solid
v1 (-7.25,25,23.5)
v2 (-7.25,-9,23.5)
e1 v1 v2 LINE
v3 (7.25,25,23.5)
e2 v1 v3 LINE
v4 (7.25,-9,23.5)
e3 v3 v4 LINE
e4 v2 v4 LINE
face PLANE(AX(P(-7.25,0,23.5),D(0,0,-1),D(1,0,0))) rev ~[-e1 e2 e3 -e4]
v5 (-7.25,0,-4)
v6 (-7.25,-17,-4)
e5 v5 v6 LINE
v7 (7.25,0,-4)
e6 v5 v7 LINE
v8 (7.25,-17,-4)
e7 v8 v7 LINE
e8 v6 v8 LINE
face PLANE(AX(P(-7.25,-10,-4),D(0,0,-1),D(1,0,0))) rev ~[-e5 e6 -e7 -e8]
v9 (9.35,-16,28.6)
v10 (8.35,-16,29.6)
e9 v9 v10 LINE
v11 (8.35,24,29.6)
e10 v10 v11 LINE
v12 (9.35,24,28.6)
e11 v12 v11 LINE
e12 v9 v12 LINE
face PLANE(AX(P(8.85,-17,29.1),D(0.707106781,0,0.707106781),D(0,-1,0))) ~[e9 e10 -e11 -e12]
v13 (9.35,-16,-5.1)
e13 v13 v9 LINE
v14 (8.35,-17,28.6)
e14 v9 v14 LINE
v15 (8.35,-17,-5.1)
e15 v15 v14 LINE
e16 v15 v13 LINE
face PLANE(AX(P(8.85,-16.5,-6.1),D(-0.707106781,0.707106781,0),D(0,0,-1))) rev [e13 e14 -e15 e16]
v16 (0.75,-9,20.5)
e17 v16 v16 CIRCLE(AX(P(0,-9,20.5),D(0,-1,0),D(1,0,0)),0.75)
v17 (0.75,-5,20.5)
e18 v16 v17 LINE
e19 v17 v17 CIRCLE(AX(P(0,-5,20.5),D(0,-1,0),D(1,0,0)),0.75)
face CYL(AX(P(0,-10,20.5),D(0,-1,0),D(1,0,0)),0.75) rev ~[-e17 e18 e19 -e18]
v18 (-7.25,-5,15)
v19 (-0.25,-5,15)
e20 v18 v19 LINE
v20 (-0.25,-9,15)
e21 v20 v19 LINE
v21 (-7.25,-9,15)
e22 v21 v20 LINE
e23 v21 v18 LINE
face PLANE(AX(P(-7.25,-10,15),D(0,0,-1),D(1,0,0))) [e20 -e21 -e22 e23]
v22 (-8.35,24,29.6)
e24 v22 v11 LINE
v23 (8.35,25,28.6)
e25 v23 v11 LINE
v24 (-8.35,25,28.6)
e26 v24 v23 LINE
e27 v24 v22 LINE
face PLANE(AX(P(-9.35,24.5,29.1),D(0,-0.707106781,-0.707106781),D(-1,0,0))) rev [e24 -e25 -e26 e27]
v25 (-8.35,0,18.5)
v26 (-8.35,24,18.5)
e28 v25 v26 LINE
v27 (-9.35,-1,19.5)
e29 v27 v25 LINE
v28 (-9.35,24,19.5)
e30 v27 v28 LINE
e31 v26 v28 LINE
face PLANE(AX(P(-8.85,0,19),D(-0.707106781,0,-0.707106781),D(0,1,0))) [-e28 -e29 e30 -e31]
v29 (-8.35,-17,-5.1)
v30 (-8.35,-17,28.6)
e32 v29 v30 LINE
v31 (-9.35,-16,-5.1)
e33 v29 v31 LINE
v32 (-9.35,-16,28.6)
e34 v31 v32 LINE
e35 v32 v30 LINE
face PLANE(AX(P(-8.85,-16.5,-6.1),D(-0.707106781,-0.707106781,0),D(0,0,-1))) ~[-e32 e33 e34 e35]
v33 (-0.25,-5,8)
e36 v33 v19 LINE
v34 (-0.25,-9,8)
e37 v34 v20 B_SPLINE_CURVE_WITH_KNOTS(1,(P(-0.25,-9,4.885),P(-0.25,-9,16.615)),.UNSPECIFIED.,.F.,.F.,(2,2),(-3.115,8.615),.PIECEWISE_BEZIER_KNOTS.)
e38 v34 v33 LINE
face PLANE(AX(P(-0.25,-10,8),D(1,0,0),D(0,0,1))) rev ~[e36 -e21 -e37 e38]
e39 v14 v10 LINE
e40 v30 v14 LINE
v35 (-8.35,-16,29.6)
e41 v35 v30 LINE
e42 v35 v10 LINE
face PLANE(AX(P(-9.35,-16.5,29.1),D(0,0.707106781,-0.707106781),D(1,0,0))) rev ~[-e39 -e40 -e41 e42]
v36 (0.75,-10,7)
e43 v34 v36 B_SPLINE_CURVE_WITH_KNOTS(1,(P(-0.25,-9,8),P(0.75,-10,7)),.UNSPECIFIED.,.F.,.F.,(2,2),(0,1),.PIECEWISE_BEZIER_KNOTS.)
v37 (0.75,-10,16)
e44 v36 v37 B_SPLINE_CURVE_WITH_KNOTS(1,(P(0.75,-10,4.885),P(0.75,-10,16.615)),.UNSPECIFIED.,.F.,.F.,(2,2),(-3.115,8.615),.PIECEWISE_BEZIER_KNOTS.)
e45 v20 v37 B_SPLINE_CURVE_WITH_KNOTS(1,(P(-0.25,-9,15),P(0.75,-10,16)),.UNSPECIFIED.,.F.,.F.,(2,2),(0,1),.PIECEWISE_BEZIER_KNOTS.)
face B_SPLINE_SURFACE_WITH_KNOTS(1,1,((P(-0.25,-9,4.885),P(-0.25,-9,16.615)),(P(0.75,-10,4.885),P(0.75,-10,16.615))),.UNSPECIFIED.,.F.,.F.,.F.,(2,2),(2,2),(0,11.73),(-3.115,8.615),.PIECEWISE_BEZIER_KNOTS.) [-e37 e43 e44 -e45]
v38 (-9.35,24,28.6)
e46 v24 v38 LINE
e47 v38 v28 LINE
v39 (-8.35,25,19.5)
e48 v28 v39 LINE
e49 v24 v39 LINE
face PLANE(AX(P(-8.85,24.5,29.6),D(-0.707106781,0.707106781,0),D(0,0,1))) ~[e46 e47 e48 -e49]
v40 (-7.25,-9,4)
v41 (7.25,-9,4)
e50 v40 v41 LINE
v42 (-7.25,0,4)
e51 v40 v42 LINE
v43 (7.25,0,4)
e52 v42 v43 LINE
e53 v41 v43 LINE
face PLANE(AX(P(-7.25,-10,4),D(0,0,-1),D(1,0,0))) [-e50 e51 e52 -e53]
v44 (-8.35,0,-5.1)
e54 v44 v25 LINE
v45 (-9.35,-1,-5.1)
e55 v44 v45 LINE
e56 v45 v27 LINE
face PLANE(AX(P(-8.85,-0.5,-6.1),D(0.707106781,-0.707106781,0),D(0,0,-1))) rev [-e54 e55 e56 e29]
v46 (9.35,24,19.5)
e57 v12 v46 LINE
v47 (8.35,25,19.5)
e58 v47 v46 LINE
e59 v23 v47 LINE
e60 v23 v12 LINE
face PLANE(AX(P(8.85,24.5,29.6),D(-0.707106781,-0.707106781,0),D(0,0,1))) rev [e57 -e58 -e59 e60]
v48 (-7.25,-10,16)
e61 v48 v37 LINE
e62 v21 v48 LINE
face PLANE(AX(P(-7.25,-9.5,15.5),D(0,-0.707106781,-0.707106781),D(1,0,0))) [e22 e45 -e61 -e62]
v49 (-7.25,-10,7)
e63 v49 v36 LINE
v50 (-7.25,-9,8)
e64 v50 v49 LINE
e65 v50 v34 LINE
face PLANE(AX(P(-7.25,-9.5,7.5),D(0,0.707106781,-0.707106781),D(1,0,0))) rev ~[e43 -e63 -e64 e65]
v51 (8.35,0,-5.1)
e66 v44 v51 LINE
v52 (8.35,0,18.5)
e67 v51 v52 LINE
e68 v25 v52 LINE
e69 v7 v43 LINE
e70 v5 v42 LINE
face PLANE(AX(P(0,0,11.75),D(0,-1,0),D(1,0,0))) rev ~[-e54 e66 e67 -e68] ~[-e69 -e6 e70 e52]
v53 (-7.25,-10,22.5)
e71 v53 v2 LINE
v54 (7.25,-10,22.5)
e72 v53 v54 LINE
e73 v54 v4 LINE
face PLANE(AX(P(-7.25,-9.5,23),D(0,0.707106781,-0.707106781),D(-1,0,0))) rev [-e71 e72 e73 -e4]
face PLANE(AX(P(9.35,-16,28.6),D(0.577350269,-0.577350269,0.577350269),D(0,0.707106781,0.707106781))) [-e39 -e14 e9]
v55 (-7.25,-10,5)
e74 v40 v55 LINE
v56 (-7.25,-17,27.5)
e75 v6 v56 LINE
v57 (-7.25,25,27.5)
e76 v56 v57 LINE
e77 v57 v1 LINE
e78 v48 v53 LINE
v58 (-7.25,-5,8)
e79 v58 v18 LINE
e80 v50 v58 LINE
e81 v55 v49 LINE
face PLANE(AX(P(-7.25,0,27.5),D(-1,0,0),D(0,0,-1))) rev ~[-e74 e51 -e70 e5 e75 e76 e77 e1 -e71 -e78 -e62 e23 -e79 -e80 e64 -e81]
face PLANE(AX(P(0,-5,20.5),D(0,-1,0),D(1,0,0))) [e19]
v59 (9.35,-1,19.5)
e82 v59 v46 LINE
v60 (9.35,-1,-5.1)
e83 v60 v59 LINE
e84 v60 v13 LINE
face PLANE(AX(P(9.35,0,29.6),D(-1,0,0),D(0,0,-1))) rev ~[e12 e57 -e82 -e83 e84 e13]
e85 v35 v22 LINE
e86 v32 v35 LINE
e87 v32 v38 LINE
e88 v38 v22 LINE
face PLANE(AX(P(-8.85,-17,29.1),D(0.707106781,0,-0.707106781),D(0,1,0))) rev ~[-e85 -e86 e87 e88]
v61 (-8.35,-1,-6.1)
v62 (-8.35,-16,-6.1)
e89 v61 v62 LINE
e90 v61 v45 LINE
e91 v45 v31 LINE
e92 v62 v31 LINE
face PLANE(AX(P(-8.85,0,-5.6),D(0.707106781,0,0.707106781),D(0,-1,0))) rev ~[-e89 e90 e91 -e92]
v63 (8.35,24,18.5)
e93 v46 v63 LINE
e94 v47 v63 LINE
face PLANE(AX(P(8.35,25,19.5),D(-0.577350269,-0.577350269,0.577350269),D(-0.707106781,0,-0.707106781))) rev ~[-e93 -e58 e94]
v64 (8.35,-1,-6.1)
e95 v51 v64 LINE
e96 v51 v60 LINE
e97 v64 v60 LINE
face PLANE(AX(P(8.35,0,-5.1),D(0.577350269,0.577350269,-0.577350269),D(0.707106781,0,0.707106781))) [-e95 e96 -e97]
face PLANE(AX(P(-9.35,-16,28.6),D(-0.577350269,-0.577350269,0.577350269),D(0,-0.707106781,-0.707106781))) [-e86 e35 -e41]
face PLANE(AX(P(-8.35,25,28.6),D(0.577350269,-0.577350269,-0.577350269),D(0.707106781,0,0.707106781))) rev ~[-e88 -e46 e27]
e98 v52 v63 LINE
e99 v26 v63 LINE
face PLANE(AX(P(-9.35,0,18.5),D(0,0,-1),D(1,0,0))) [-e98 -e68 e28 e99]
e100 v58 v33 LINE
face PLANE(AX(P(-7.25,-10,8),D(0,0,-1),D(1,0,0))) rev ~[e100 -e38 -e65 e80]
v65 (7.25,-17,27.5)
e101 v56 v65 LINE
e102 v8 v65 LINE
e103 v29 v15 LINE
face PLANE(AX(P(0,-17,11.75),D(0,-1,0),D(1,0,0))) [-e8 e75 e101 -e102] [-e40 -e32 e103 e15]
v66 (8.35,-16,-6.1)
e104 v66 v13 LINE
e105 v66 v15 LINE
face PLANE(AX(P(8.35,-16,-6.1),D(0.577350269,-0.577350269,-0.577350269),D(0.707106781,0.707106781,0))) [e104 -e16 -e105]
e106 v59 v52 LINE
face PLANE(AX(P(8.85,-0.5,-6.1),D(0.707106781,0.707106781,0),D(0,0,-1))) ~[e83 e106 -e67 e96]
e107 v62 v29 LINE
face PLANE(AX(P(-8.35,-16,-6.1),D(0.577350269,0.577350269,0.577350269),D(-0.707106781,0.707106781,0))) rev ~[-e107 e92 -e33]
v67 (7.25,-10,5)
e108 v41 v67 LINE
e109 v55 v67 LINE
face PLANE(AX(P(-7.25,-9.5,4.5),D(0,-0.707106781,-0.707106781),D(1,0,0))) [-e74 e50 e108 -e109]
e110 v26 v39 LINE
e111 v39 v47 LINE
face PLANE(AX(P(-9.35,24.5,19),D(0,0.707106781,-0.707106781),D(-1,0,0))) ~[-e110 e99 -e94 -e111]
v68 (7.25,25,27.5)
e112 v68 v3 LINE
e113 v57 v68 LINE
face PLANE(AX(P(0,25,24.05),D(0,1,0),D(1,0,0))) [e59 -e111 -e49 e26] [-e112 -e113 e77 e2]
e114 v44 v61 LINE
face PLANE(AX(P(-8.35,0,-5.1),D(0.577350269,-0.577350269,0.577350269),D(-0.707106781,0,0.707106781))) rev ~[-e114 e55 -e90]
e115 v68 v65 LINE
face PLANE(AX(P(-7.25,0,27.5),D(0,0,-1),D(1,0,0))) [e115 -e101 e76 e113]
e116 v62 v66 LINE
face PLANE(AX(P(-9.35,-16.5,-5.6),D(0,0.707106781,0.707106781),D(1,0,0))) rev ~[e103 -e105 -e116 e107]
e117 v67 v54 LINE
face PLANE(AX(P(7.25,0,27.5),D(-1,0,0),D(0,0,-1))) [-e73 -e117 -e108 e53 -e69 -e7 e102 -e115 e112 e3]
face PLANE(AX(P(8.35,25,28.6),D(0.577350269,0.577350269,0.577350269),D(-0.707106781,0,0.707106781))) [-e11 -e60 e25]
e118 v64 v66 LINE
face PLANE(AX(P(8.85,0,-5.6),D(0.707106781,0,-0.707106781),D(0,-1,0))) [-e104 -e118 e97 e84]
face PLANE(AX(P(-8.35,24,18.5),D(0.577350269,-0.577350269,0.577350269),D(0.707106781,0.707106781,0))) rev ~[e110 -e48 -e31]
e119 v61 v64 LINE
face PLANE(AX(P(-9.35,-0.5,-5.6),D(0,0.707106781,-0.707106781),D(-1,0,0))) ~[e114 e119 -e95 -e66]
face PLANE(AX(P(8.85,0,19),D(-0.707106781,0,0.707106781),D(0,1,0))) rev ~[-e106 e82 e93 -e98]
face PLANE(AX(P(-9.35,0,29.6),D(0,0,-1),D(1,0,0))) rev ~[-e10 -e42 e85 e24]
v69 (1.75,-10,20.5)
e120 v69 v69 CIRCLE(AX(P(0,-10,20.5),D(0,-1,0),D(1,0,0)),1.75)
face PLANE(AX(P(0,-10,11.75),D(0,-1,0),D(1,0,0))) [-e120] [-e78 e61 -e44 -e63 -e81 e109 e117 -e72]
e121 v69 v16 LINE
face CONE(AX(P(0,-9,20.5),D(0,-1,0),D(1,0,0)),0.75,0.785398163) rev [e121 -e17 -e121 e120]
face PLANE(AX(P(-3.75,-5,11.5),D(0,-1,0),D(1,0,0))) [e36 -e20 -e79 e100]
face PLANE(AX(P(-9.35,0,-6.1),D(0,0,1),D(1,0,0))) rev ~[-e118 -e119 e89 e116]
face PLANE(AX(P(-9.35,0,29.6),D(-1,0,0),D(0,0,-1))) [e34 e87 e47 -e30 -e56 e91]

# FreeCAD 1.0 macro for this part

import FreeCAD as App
import Part
import Sketcher

V = App.Vector


def edges_at(feature, points):
    """Names of the edges that pass closest to the given points."""
    edges = feature.Shape.Edges
    near = lambda p: min(range(len(edges)), key=lambda i: edges[i].distToShape(Part.Vertex(*p))[0])
    return sorted({f"Edge{near(p) + 1}" for p in points})


def add_polygon(sketch, points):
    """Adds a closed chain of lines whose ends are joined by coincident constraints."""
    first, n = sketch.GeometryCount, len(points)
    for a, b in zip(points, points[1:] + points[:1]):
        sketch.addGeometry(Part.LineSegment(App.Vector(*a, 0), App.Vector(*b, 0)), False)
    for i in range(n):
        sketch.addConstraint(Sketcher.Constraint("Coincident", first + i, 2, first + (i + 1) % n, 1))

doc = App.newDocument("Part")
body = doc.addObject("PartDesign::Body", "Body")

sketch1 = body.newObject("Sketcher::SketchObject", "Sketch")
sketch1.AttachmentSupport = (doc.getObject("XZ_Plane"), [""])
sketch1.MapMode = "FlatFace"
add_polygon(sketch1, [(-9, 30), (-9, -6), (9, -6), (9, 30)])
sketch1.addConstraint(Sketcher.Constraint("Vertical", 0))
sketch1.addConstraint(Sketcher.Constraint("Horizontal", 1))
sketch1.addConstraint(Sketcher.Constraint("Vertical", 2))
sketch1.addConstraint(Sketcher.Constraint("Horizontal", 3))
sketch1.addConstraint(Sketcher.Constraint("DistanceX", 1, 1, 1, 2, 18.7))
sketch1.addConstraint(Sketcher.Constraint("DistanceY", 0, 2, 0, 1, 35.7))
sketch1.addConstraint(Sketcher.Constraint("DistanceY", 0, 2, -1, 1, 6.1))
sketch1.addConstraint(Sketcher.Constraint("DistanceX", 0, 2, -1, 1, 9.35))
pad1 = body.newObject("PartDesign::Pad", "Pad")
pad1.Profile = sketch1
pad1.Length = 17

sketch2 = body.newObject("Sketcher::SketchObject", "Sketch001")
sketch2.AttachmentSupport = (doc.getObject("XZ_Plane"), [""])
sketch2.MapMode = "FlatFace"
sketch2.AttachmentOffset = App.Placement(V(0, 0, 17), App.Rotation())
add_polygon(sketch2, [(-7, 28), (-7, -4), (7, -4), (7, 28)])
sketch2.addConstraint(Sketcher.Constraint("Vertical", 0))
sketch2.addConstraint(Sketcher.Constraint("Horizontal", 1))
sketch2.addConstraint(Sketcher.Constraint("Vertical", 2))
sketch2.addConstraint(Sketcher.Constraint("Horizontal", 3))
sketch2.addConstraint(Sketcher.Constraint("DistanceX", 1, 1, 1, 2, 14.5))
sketch2.addConstraint(Sketcher.Constraint("DistanceY", 0, 2, 0, 1, 31.5))
sketch2.addConstraint(Sketcher.Constraint("DistanceY", 0, 2, -1, 1, 4.0))
sketch2.addConstraint(Sketcher.Constraint("DistanceX", 0, 2, -1, 1, 7.25))
pocket1 = body.newObject("PartDesign::Pocket", "Pocket")
pocket1.Profile = sketch2
pocket1.Length = 7

sketch3 = body.newObject("Sketcher::SketchObject", "Sketch002")
sketch3.AttachmentSupport = (doc.getObject("XZ_Plane"), [""])
sketch3.MapMode = "FlatFace"
sketch3.AttachmentOffset = App.Placement(V(0, 0, 10), App.Rotation())
add_polygon(sketch3, [(-7.2, 4), (-7.2, -4), (7.2, -4), (7.2, 4)])
add_polygon(sketch3, [(-7.2, 27.5), (-7.2, 23.5), (7.2, 23.5), (7.2, 27.5)])
sketch3.addConstraint(Sketcher.Constraint("Vertical", 0))
sketch3.addConstraint(Sketcher.Constraint("Horizontal", 1))
sketch3.addConstraint(Sketcher.Constraint("Vertical", 2))
sketch3.addConstraint(Sketcher.Constraint("Horizontal", 3))
sketch3.addConstraint(Sketcher.Constraint("Vertical", 4))
sketch3.addConstraint(Sketcher.Constraint("Horizontal", 5))
sketch3.addConstraint(Sketcher.Constraint("Vertical", 6))
sketch3.addConstraint(Sketcher.Constraint("Horizontal", 7))
sketch3.addConstraint(Sketcher.Constraint("Symmetric", 0, 2, 2, 2, -1, 1))
sketch3.addConstraint(Sketcher.Constraint("Vertical", 3, 2, 4, 2))
sketch3.addConstraint(Sketcher.Constraint("Vertical", 2, 2, 5, 2))
sketch3.addConstraint(Sketcher.Constraint("DistanceY", 0, 2, 0, 1, 8.0))
sketch3.addConstraint(Sketcher.Constraint("DistanceY", 4, 2, 4, 1, 4.0))
sketch3.addConstraint(Sketcher.Constraint("DistanceX", 1, 1, 1, 2, 14.5))
sketch3.addConstraint(Sketcher.Constraint("DistanceY", -1, 1, 4, 2, 23.5))
pocket2 = body.newObject("PartDesign::Pocket", "Pocket001")
pocket2.Profile = sketch3
pocket2.Type = "ThroughAll"

sketch4 = body.newObject("Sketcher::SketchObject", "Sketch003")
sketch4.AttachmentSupport = (doc.getObject("XZ_Plane"), [""])
sketch4.MapMode = "FlatFace"
sketch4.AttachmentOffset = App.Placement(V(0, 0, 10), App.Rotation())
sketch4.addGeometry(Part.Circle(V(0, 20.5, 0), V(0, 0, 1), 0.8), False)
add_polygon(sketch4, [(-7.2, 15), (-7.2, 8), (-0.2, 8), (-0.2, 15)])
sketch4.addConstraint(Sketcher.Constraint("Vertical", 1))
sketch4.addConstraint(Sketcher.Constraint("Horizontal", 2))
sketch4.addConstraint(Sketcher.Constraint("Vertical", 3))
sketch4.addConstraint(Sketcher.Constraint("Horizontal", 4))
sketch4.addConstraint(Sketcher.Constraint("PointOnObject", 0, 3, -2))
sketch4.addConstraint(Sketcher.Constraint("Equal", 4, 1))
sketch4.addConstraint(Sketcher.Constraint("Diameter", 0, 1.5))
sketch4.addConstraint(Sketcher.Constraint("DistanceX", 2, 1, 2, 2, 7.0))
sketch4.addConstraint(Sketcher.Constraint("DistanceY", -1, 1, 1, 2, 8.0))
sketch4.addConstraint(Sketcher.Constraint("DistanceY", -1, 1, 0, 3, 20.5))
sketch4.addConstraint(Sketcher.Constraint("DistanceX", 1, 2, -1, 1, 7.25))
pocket3 = body.newObject("PartDesign::Pocket", "Pocket002")
pocket3.Profile = sketch4
pocket3.Length = 5

sketch5 = body.newObject("Sketcher::SketchObject", "Sketch004")
sketch5.AttachmentSupport = (doc.getObject("XZ_Plane"), [""])
sketch5.MapMode = "FlatFace"
add_polygon(sketch5, [(-9.3, 18.5), (-9.3, 29.6), (9.3, 29.6), (9.3, 18.5)])
add_polygon(sketch5, [(7.2, 27.5), (-7.2, 27.5), (-7.2, 23.5), (7.2, 23.5)])
sketch5.addConstraint(Sketcher.Constraint("Vertical", 0))
sketch5.addConstraint(Sketcher.Constraint("Horizontal", 1))
sketch5.addConstraint(Sketcher.Constraint("Vertical", 2))
sketch5.addConstraint(Sketcher.Constraint("Horizontal", 3))
sketch5.addConstraint(Sketcher.Constraint("Horizontal", 4))
sketch5.addConstraint(Sketcher.Constraint("Vertical", 5))
sketch5.addConstraint(Sketcher.Constraint("Horizontal", 6))
sketch5.addConstraint(Sketcher.Constraint("Vertical", 7))
sketch5.addConstraint(Sketcher.Constraint("DistanceY", 5, 2, 5, 1, 4.0))
sketch5.addConstraint(Sketcher.Constraint("DistanceX", 1, 1, 1, 2, 18.7))
sketch5.addConstraint(Sketcher.Constraint("DistanceX", 4, 2, 4, 1, 14.5))
sketch5.addConstraint(Sketcher.Constraint("DistanceY", 0, 1, 0, 2, 11.1))
sketch5.addConstraint(Sketcher.Constraint("DistanceY", 3, 2, 4, 2, 9.0))
sketch5.addConstraint(Sketcher.Constraint("DistanceY", -1, 1, 0, 2, 29.6))
sketch5.addConstraint(Sketcher.Constraint("DistanceX", 0, 2, 4, 2, 2.1))
sketch5.addConstraint(Sketcher.Constraint("DistanceX", 0, 2, -1, 1, 9.35))
pad2 = body.newObject("PartDesign::Pad", "Pad001")
pad2.Profile = sketch5
pad2.Length = 25
pad2.Reversed = True
doc.recompute()

chamfer = body.newObject("PartDesign::Chamfer", "Chamfer")
chamfer.Base = (pad2, edges_at(pad2, [
    (0, -17, 29.6),
    (9.35, -17, 11.75),
    (9.35, 4, 29.6),
    (-9.35, 4, 29.6),
    (-9.35, -17, 11.75),
    (0, -17, -6.1),
    (9.35, -8.5, -6.1),
    (-9.35, -8.5, -6.1),
    (0, 0, -6.1),
    (9.35, 0, 6.2),
    (9.35, 12.5, 18.5),
    (9.35, 25, 24.05),
    (-9.35, 25, 24.05),
    (-9.35, 12.5, 18.5),
    (-9.35, 0, 6.2),
    (0, 25, 18.5),
    (0, 25, 29.6),
    (0, -10, 23.5),
    (0, -10, 4),
    (-0.75, -10, 20.5),
    (-3.75, -10, 15),
    (-0.25, -10, 11.5),
    (-3.75, -10, 8),
]))
chamfer.Size = 1

doc.recompute()
